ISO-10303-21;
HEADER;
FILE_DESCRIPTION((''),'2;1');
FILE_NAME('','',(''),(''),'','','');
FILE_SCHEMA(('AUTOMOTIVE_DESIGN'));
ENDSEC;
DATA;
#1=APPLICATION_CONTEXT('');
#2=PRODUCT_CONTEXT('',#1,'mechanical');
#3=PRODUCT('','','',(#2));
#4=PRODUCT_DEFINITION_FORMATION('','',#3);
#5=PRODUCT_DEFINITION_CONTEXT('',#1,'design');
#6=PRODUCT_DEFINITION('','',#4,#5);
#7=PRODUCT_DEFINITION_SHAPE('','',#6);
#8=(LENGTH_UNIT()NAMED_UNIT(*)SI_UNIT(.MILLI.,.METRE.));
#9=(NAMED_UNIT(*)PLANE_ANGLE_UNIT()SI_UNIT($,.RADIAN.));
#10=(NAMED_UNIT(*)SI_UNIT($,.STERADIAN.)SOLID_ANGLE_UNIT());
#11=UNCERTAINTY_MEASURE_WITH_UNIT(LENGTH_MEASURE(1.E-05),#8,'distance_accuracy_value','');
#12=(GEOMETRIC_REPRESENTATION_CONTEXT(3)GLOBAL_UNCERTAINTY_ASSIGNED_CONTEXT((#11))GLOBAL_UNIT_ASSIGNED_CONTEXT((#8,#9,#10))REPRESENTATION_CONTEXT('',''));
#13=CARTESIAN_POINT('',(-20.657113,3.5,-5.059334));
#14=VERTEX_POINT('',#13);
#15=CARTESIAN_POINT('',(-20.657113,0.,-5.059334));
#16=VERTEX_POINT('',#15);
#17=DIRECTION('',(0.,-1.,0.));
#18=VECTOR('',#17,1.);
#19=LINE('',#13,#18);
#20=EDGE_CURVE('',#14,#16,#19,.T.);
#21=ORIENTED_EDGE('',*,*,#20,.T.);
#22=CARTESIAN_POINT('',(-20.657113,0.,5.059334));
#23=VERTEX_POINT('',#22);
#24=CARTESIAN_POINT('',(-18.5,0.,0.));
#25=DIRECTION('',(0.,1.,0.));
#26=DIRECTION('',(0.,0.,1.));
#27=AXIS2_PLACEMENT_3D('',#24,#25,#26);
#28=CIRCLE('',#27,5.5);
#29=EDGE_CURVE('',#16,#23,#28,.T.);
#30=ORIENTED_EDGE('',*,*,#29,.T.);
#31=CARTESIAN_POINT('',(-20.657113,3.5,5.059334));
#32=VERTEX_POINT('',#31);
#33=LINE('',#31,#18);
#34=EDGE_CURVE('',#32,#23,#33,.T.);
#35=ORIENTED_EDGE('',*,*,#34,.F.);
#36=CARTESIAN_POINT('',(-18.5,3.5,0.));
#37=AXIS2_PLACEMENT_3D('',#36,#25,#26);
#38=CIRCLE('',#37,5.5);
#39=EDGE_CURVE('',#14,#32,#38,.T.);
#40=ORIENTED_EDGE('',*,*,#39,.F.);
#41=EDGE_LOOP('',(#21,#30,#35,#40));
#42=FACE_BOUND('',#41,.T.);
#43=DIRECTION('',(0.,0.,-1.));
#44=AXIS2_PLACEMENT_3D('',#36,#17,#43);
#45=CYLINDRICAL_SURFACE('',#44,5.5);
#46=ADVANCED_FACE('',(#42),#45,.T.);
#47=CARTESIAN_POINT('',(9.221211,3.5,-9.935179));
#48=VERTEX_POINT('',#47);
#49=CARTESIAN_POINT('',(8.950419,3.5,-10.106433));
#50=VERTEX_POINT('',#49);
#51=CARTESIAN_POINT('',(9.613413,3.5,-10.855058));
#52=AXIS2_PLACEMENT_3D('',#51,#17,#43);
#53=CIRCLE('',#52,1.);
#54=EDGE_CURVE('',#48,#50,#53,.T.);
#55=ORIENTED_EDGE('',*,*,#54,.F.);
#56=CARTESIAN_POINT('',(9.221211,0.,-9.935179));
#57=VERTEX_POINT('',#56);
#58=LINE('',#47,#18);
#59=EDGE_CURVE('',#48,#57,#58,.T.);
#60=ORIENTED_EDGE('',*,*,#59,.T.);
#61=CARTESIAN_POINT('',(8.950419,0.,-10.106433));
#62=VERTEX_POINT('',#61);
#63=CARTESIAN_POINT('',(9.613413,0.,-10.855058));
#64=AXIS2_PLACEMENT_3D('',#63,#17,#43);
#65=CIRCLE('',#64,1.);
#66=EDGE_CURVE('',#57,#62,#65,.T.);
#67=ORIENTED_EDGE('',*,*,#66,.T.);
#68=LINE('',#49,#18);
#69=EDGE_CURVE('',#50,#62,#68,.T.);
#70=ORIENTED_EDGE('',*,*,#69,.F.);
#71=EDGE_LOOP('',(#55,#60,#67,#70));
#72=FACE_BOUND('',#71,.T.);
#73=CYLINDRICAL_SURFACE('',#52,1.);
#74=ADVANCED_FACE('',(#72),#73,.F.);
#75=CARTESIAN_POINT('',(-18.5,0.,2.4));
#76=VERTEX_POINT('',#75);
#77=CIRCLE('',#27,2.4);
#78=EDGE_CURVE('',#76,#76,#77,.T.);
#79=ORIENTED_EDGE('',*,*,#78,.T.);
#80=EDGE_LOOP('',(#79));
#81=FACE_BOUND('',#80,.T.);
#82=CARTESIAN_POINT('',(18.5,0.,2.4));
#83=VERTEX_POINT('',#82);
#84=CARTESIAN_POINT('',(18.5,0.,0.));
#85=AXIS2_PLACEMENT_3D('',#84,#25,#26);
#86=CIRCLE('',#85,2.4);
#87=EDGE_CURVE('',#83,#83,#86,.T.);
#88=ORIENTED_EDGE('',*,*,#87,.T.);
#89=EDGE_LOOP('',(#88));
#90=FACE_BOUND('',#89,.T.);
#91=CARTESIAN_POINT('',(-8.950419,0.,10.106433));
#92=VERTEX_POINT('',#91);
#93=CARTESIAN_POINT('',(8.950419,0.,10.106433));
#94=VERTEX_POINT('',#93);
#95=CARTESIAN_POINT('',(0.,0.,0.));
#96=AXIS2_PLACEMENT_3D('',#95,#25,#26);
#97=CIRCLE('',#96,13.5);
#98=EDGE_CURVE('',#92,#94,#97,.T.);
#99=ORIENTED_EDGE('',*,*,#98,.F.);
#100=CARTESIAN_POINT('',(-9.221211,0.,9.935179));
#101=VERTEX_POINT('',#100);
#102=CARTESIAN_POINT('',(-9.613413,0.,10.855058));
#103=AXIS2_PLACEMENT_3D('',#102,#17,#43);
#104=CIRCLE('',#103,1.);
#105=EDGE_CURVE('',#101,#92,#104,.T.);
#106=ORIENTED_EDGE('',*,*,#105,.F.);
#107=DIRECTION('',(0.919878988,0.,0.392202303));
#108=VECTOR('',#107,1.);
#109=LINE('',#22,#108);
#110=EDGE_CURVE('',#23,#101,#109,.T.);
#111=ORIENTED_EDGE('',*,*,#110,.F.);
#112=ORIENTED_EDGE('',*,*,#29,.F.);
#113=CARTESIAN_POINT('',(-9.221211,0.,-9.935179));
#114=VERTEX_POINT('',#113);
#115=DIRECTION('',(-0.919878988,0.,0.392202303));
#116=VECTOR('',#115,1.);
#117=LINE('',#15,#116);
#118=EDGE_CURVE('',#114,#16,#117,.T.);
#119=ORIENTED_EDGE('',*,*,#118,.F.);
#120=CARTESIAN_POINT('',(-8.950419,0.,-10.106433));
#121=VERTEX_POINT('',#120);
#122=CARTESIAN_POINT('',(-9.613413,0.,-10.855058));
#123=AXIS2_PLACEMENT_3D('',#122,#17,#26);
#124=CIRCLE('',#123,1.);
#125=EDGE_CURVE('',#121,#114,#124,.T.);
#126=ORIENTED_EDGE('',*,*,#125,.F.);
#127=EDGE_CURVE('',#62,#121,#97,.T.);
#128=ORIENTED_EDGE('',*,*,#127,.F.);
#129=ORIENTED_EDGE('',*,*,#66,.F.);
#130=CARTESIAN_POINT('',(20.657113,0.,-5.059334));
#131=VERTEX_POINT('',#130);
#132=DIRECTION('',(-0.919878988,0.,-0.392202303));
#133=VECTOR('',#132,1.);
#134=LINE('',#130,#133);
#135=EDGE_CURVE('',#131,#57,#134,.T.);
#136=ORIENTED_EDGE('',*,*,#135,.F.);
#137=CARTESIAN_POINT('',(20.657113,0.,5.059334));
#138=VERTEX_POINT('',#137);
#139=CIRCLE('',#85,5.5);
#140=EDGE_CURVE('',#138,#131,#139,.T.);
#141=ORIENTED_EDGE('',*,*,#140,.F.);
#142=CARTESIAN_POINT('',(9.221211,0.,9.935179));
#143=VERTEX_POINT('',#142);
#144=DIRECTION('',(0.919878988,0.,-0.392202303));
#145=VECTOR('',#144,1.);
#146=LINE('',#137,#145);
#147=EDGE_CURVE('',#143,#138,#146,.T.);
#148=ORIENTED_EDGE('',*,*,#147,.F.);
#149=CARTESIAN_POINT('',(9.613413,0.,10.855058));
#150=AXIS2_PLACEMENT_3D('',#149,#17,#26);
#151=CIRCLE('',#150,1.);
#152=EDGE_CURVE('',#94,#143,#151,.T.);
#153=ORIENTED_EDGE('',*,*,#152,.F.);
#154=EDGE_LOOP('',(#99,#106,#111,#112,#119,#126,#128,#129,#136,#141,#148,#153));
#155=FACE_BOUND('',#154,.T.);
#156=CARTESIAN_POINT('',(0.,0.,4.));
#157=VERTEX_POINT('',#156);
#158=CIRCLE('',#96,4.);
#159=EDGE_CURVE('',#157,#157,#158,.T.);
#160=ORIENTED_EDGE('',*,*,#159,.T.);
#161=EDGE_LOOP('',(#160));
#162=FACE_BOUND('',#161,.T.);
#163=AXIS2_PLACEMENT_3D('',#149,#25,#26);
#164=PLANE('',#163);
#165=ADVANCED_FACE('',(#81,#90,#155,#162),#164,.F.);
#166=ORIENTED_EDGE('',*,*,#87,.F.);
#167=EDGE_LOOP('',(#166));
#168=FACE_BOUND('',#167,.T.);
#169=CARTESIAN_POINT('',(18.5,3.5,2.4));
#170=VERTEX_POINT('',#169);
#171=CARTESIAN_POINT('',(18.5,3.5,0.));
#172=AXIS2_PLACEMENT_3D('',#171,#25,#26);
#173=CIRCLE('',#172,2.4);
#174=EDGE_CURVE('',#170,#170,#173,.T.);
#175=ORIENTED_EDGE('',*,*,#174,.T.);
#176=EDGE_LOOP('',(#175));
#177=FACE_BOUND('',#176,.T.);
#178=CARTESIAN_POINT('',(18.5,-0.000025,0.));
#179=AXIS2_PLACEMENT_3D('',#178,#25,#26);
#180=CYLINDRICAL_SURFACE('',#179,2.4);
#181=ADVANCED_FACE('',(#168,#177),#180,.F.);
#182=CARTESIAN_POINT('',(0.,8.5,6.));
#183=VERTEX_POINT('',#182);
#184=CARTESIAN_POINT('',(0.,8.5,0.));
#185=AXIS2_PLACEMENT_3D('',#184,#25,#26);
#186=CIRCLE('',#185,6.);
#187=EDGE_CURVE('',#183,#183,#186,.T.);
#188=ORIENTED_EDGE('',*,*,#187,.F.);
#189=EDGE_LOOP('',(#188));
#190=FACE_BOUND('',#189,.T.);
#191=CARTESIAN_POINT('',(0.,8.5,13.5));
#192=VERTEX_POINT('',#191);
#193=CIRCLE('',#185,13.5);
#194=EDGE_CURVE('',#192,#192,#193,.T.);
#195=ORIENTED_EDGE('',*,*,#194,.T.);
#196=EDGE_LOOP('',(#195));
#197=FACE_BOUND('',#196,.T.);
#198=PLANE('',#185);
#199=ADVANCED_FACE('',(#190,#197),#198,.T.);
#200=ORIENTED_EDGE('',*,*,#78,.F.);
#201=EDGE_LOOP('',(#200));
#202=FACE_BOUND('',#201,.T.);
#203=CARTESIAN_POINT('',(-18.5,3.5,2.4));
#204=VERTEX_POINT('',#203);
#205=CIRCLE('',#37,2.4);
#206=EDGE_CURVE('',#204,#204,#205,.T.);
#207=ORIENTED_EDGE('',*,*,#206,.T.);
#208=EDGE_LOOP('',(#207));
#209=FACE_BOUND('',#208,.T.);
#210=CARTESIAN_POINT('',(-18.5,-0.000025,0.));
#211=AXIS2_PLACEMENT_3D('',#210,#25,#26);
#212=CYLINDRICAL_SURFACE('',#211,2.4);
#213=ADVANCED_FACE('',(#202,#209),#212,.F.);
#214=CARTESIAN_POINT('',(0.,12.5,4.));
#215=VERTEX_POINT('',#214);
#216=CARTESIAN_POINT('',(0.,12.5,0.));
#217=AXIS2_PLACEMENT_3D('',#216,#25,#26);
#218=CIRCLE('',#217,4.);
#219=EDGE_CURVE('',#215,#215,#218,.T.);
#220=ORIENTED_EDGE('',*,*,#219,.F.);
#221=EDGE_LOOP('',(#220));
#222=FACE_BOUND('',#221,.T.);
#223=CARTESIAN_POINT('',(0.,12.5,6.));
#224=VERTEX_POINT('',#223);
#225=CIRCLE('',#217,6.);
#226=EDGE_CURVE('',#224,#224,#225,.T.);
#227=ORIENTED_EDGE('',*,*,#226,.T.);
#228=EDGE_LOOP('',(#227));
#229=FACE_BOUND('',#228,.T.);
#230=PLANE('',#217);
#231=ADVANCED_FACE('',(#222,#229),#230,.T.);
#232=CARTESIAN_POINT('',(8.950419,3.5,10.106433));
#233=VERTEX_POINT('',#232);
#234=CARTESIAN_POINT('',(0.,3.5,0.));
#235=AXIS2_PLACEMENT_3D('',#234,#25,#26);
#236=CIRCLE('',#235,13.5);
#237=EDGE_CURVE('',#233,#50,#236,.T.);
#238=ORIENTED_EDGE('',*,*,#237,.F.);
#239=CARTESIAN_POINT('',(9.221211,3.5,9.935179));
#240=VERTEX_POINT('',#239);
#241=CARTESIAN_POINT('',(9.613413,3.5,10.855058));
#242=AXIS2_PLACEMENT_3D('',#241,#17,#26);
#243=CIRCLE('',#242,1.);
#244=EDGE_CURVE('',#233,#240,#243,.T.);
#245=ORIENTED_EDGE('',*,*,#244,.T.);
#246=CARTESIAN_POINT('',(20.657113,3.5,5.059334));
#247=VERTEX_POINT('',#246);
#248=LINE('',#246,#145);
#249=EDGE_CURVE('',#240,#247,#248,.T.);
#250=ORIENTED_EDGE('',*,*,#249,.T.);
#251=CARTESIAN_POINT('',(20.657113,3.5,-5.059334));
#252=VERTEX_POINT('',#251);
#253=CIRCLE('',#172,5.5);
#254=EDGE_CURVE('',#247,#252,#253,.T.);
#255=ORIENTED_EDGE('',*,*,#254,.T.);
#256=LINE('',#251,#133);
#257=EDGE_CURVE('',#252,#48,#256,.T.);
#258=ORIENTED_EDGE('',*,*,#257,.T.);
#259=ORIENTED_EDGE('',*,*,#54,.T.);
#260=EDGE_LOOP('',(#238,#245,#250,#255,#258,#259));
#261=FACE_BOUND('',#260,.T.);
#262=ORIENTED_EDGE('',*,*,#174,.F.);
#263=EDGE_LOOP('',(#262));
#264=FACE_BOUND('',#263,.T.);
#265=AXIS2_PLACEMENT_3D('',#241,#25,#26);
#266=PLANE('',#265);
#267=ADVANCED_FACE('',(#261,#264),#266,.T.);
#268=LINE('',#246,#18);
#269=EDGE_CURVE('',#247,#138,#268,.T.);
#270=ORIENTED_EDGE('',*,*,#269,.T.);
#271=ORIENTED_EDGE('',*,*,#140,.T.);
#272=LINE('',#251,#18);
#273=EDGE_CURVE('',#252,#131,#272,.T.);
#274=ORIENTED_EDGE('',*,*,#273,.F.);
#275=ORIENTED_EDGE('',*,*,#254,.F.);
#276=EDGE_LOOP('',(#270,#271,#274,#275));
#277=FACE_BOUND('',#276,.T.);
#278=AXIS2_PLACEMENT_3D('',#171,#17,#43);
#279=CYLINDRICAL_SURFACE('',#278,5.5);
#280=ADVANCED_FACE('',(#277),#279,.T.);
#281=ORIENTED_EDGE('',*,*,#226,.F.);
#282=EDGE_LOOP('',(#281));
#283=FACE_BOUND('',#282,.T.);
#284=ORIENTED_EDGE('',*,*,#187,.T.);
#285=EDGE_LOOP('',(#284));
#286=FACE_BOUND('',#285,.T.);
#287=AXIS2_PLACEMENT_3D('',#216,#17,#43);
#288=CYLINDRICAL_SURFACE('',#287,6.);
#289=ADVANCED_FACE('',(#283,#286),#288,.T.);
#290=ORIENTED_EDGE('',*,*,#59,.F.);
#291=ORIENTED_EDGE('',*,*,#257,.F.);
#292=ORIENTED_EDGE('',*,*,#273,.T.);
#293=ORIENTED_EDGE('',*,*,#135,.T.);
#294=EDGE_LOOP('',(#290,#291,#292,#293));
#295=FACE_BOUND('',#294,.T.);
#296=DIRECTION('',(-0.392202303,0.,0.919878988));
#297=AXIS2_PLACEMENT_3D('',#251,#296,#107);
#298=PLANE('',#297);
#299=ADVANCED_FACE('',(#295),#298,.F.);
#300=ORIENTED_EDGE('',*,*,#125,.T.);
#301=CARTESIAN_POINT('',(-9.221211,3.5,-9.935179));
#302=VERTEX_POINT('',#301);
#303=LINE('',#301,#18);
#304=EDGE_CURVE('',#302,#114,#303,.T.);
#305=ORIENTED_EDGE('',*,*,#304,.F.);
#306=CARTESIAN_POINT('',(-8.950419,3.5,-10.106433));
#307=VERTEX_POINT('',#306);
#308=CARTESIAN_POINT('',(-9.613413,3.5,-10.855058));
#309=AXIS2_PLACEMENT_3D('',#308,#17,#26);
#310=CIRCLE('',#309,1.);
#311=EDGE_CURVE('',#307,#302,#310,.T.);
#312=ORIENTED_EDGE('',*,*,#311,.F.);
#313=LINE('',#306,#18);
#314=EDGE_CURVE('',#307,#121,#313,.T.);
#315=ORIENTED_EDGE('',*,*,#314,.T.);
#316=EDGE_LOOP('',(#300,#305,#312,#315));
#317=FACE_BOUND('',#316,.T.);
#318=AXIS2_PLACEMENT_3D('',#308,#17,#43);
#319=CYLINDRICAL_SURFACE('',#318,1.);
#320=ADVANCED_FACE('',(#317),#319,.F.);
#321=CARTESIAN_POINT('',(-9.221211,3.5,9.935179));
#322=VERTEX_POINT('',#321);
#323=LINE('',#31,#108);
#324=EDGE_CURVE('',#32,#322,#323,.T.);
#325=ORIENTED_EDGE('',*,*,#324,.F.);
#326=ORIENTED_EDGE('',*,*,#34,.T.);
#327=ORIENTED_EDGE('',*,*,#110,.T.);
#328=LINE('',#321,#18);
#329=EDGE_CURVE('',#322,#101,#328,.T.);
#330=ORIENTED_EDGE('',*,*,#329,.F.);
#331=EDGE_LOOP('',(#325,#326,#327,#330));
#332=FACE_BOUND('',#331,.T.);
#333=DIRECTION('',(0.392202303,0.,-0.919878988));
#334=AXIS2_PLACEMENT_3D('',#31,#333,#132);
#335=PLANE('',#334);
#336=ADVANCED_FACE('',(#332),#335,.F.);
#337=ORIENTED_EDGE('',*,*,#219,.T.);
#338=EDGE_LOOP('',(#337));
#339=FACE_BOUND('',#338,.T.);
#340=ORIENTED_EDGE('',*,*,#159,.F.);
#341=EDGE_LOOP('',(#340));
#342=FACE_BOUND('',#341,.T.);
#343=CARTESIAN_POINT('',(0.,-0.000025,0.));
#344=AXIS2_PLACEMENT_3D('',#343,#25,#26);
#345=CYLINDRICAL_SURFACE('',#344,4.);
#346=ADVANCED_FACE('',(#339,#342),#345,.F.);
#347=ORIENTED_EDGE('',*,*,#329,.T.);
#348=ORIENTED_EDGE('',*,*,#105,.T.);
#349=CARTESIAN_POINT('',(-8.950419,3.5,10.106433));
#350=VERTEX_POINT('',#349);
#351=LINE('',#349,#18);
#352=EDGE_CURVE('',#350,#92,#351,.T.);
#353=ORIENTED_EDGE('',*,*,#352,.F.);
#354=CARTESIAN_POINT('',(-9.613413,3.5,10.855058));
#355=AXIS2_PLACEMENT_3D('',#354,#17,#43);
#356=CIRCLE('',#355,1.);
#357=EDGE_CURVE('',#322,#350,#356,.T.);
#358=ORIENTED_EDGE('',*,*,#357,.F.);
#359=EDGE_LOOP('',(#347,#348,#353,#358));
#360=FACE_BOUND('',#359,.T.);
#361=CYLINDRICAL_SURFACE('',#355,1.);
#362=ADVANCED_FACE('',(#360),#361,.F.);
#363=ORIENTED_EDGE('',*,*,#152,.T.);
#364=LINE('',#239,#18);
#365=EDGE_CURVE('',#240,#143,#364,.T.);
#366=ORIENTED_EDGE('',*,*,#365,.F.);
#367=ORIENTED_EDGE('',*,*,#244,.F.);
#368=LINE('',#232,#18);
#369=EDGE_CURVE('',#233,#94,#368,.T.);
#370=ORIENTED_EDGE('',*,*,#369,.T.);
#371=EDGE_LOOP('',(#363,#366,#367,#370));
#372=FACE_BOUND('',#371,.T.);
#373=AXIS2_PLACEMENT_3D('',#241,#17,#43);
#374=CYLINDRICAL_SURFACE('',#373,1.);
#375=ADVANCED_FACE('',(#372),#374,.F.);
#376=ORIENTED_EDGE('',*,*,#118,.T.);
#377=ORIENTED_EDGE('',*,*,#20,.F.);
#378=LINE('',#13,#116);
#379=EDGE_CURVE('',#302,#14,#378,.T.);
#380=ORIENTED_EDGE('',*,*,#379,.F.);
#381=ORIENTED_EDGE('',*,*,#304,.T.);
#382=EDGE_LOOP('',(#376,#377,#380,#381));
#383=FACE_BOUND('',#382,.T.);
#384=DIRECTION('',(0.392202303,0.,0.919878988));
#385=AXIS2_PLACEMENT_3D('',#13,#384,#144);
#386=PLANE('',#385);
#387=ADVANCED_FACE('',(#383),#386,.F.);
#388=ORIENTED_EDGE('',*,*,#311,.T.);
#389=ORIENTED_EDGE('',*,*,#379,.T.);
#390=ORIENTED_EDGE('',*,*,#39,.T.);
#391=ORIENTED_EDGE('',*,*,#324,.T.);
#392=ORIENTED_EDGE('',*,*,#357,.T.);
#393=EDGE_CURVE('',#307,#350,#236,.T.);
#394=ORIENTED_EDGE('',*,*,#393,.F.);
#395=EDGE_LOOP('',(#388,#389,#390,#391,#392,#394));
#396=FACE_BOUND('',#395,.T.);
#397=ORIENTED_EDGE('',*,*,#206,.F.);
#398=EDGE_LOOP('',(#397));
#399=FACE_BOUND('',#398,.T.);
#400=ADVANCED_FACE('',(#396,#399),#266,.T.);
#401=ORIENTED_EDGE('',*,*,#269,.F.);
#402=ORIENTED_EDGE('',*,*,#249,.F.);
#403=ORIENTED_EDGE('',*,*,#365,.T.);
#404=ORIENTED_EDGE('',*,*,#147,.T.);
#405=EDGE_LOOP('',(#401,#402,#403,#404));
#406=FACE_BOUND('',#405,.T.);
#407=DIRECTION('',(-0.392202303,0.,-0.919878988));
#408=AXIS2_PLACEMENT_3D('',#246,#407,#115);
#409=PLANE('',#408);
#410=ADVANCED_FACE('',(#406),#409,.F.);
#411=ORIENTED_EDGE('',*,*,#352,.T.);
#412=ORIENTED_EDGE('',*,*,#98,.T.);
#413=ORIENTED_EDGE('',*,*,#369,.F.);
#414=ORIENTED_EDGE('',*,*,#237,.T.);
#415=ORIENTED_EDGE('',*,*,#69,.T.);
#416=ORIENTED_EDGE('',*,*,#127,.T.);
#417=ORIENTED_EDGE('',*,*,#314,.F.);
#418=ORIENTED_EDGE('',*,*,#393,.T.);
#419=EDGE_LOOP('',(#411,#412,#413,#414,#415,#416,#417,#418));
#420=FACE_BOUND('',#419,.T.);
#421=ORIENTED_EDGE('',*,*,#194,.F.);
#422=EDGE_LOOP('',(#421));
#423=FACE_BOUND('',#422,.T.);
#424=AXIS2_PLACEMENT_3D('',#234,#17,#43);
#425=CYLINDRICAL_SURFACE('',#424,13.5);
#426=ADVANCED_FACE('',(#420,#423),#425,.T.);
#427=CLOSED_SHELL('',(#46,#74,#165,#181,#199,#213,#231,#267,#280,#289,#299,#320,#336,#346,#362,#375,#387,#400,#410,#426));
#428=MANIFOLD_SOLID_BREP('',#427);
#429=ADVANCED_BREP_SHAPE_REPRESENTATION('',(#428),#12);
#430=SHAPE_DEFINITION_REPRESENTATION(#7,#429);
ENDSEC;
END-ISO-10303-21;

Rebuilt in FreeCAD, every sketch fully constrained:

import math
import FreeCAD as App
import Part
import Sketcher
from FreeCAD import Vector

doc = App.newDocument("Part")
body = doc.addObject("PartDesign::Body", "Body")

# Sketch on XZ plane
sketch1 = body.newObject("Sketcher::SketchObject", "Sketch")
sketch1.AttachmentSupport = (doc.getObject("XZ_Plane"), [""])
sketch1.MapMode = "FlatFace"
sketch1.addGeometry(Part.LineSegment(Vector(-9.22, -9.94, 0), Vector(-20.66, -5.06, 0)), False)
sketch1.addGeometry(Part.ArcOfCircle(Part.Circle(Vector(-18.5, 0, 0), Vector(0, 0, 1), 5.5), math.radians(113), math.radians(247)), False)
sketch1.addGeometry(Part.LineSegment(Vector(-20.66, 5.06, 0), Vector(-9.22, 9.94, 0)), False)
sketch1.addGeometry(Part.ArcOfCircle(Part.Circle(Vector(-9.61, 10.86, 0), Vector(0, 0, 1), 1), math.radians(-66.91), math.radians(-48.47)), False)
sketch1.addGeometry(Part.ArcOfCircle(Part.Circle(Vector(0, 0, 0), Vector(0, 0, 1), 13.5), math.radians(48), math.radians(132)), False)
sketch1.addGeometry(Part.ArcOfCircle(Part.Circle(Vector(9.61, 10.86, 0), Vector(0, 0, 1), 1), math.radians(-131.53), math.radians(-113.09)), False)
sketch1.addGeometry(Part.LineSegment(Vector(9.22, 9.94, 0), Vector(20.66, 5.06, 0)), False)
sketch1.addGeometry(Part.ArcOfCircle(Part.Circle(Vector(18.5, 0, 0), Vector(0, 0, 1), 5.5), math.radians(-67), math.radians(67)), False)
sketch1.addGeometry(Part.LineSegment(Vector(20.66, -5.06, 0), Vector(9.22, -9.94, 0)), False)
sketch1.addGeometry(Part.ArcOfCircle(Part.Circle(Vector(9.61, -10.86, 0), Vector(0, 0, 1), 1), math.radians(113.09), math.radians(131.53)), False)
sketch1.addGeometry(Part.ArcOfCircle(Part.Circle(Vector(0, 0, 0), Vector(0, 0, 1), 13.5), math.radians(-132), math.radians(-48)), False)
sketch1.addGeometry(Part.ArcOfCircle(Part.Circle(Vector(-9.61, -10.86, 0), Vector(0, 0, 1), 1), math.radians(48.47), math.radians(66.91)), False)
sketch1.addConstraint(Sketcher.Constraint("Tangent", 0, 2, 1, 2))
sketch1.addConstraint(Sketcher.Constraint("Tangent", 1, 1, 2, 1))
sketch1.addConstraint(Sketcher.Constraint("Tangent", 2, 2, 3, 1))
sketch1.addConstraint(Sketcher.Constraint("Tangent", 3, 2, 4, 2))
sketch1.addConstraint(Sketcher.Constraint("Tangent", 4, 1, 5, 1))
sketch1.addConstraint(Sketcher.Constraint("Tangent", 5, 2, 6, 1))
sketch1.addConstraint(Sketcher.Constraint("Tangent", 6, 2, 7, 2))
sketch1.addConstraint(Sketcher.Constraint("Tangent", 7, 1, 8, 1))
sketch1.addConstraint(Sketcher.Constraint("Tangent", 8, 2, 9, 1))
sketch1.addConstraint(Sketcher.Constraint("Tangent", 9, 2, 10, 2))
sketch1.addConstraint(Sketcher.Constraint("Tangent", 10, 1, 11, 1))
sketch1.addConstraint(Sketcher.Constraint("Tangent", 11, 2, 0, 1))
sketch1.addConstraint(Sketcher.Constraint("Coincident", 4, 3, -1, 1))
sketch1.addConstraint(Sketcher.Constraint("Coincident", 10, 3, -1, 1))
sketch1.addConstraint(Sketcher.Constraint("Equal", 3, 5))
sketch1.addConstraint(Sketcher.Constraint("Equal", 1, 7))
sketch1.addConstraint(Sketcher.Constraint("Equal", 5, 9))
sketch1.addConstraint(Sketcher.Constraint("Equal", 4, 10))
sketch1.addConstraint(Sketcher.Constraint("Equal", 9, 11))
sketch1.addConstraint(Sketcher.Constraint("Symmetric", 1, 3, 7, 3, -1, 1))
sketch1.addConstraint(Sketcher.Constraint("Symmetric", 2, 2, 5, 2, -2))
sketch1.addConstraint(Sketcher.Constraint("Parallel", 0, 6))
sketch1.addConstraint(Sketcher.Constraint("Parallel", 2, 8))
sketch1.addConstraint(Sketcher.Constraint("Radius", 3, 1.0))
sketch1.addConstraint(Sketcher.Constraint("Radius", 1, 5.5))
sketch1.addConstraint(Sketcher.Constraint("Radius", 4, 13.5))
sketch1.addConstraint(Sketcher.Constraint("DistanceX", 1, 3, 7, 3, 37.0))
sketch1.addConstraint(Sketcher.Constraint("DistanceX", 0, 2, 11, 3, 11.043699))
pad1 = body.newObject("PartDesign::Pad", "Pad")
pad1.Profile = sketch1
pad1.Length = 3.5
pad1.Reversed = True

# Sketch on XZ plane
sketch2 = body.newObject("Sketcher::SketchObject", "Sketch001")
sketch2.AttachmentSupport = (doc.getObject("XZ_Plane"), [""])
sketch2.MapMode = "FlatFace"
sketch2.AttachmentOffset = App.Placement(Vector(0, 0, -3.5), App.Rotation())
sketch2.addGeometry(Part.Circle(Vector(0, 0, 0), Vector(0, 0, 1), 14), False)
sketch2.addConstraint(Sketcher.Constraint("Coincident", 0, 3, -1, 1))
sketch2.addConstraint(Sketcher.Constraint("Diameter", 0, 27.0))
pad2 = body.newObject("PartDesign::Pad", "Pad001")
pad2.Profile = sketch2
pad2.Length = 5
pad2.Reversed = True

# Sketch on XZ plane
sketch3 = body.newObject("Sketcher::SketchObject", "Sketch002")
sketch3.AttachmentSupport = (doc.getObject("XZ_Plane"), [""])
sketch3.MapMode = "FlatFace"
sketch3.AttachmentOffset = App.Placement(Vector(0, 0, -8.5), App.Rotation())
sketch3.addGeometry(Part.Circle(Vector(0, 0, 0), Vector(0, 0, 1), 6), False)
sketch3.addConstraint(Sketcher.Constraint("Coincident", 0, 3, -1, 1))
sketch3.addConstraint(Sketcher.Constraint("Diameter", 0, 12.0))
pad3 = body.newObject("PartDesign::Pad", "Pad002")
pad3.Profile = sketch3
pad3.Length = 4
pad3.Reversed = True

# Sketch on XZ plane
sketch4 = body.newObject("Sketcher::SketchObject", "Sketch003")
sketch4.AttachmentSupport = (doc.getObject("XZ_Plane"), [""])
sketch4.MapMode = "FlatFace"
sketch4.AttachmentOffset = App.Placement(Vector(0, 0, -12.5), App.Rotation())
sketch4.addGeometry(Part.Circle(Vector(0, 0, 0), Vector(0, 0, 1), 4), False)
sketch4.addConstraint(Sketcher.Constraint("Coincident", 0, 3, -1, 1))
sketch4.addConstraint(Sketcher.Constraint("Diameter", 0, 8.0))
pocket1 = body.newObject("PartDesign::Pocket", "Pocket")
pocket1.Profile = sketch4
pocket1.Type = "ThroughAll"
pocket1.Reversed = True

# Sketch on XZ plane
sketch5 = body.newObject("Sketcher::SketchObject", "Sketch004")
sketch5.AttachmentSupport = (doc.getObject("XZ_Plane"), [""])
sketch5.MapMode = "FlatFace"
sketch5.AttachmentOffset = App.Placement(Vector(0, 0, -3.5), App.Rotation())
sketch5.addGeometry(Part.Circle(Vector(-18.5, 0, 0), Vector(0, 0, 1), 2.4), False)
sketch5.addGeometry(Part.Circle(Vector(18.5, 0, 0), Vector(0, 0, 1), 2.4), False)
sketch5.addConstraint(Sketcher.Constraint("Equal", 0, 1))
sketch5.addConstraint(Sketcher.Constraint("Symmetric", 0, 3, 1, 3, -1, 1))
sketch5.addConstraint(Sketcher.Constraint("PointOnObject", 0, 3, -1))
sketch5.addConstraint(Sketcher.Constraint("Diameter", 0, 4.8))
sketch5.addConstraint(Sketcher.Constraint("DistanceX", 0, 3, 1, 3, 37.0))
pocket2 = body.newObject("PartDesign::Pocket", "Pocket001")
pocket2.Profile = sketch5
pocket2.Type = "ThroughAll"
pocket2.Reversed = True

doc.recompute()
